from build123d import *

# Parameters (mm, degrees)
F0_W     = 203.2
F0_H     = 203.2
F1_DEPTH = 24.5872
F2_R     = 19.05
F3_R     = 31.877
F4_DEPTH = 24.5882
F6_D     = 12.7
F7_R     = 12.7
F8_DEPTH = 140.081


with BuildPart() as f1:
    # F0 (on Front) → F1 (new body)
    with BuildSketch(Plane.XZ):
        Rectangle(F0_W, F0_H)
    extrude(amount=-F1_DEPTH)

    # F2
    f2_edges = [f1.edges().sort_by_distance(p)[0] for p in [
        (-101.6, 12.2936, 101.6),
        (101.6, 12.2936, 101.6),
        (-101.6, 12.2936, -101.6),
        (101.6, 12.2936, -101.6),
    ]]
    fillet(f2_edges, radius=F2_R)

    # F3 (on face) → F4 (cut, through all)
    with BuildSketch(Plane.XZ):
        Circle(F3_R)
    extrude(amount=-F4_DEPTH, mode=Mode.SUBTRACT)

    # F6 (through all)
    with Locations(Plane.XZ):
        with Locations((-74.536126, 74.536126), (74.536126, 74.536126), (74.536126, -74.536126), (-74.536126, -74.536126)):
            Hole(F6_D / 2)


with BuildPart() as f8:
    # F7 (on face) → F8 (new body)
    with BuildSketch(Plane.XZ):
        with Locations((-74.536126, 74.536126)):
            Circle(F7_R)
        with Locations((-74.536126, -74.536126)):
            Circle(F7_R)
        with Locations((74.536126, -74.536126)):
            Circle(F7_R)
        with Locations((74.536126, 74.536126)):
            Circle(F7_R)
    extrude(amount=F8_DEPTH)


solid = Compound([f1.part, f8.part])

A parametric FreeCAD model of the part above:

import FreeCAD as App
import Part
import Sketcher
from FreeCAD import Vector
Q = App.Units.Quantity


def edges_at(feature, points):
    """Names of the edges that pass closest to the given points."""
    edges = feature.Shape.Edges
    near = lambda p: min(range(len(edges)), key=lambda i: edges[i].distToShape(Part.Vertex(*p))[0])
    return sorted({f"Edge{near(p) + 1}" for p in points})

doc = App.newDocument("Part")
params = doc.addObject("Spreadsheet::Sheet", "Params")
for row, (alias, value) in enumerate([
    ("sketch1_width", "8 in"),
    ("pad1_length", "0.968 in"),
    ("fillet_radius", "0.75 in"),
    ("sketch2_diameter", "2.51 in"),
    ("sketch3_diameter", "0.5 in"),
    ("hole_diameter", "0.5 in"),
    ("sketch4_diameter", "1 in"),
    ("pad2_length", "5.515 in"),
], start=1):
    params.set(f"A{row}", alias)
    params.set(f"B{row}", "=" + value)
    params.setAlias(f"B{row}", alias)

body = doc.addObject("PartDesign::Body", "Body")

sketch1 = body.newObject("Sketcher::SketchObject", "Sketch")
sketch1.AttachmentSupport = (doc.getObject("XZ_Plane"), [""])
sketch1.MapMode = "FlatFace"
sketch1.addGeometry(Part.LineSegment(Vector(-102, 102, 0), Vector(-102, -102, 0)), False)
sketch1.addGeometry(Part.LineSegment(Vector(-102, -102, 0), Vector(102, -102, 0)), False)
sketch1.addGeometry(Part.LineSegment(Vector(102, -102, 0), Vector(102, 102, 0)), False)
sketch1.addGeometry(Part.LineSegment(Vector(102, 102, 0), Vector(-102, 102, 0)), False)
sketch1.addConstraint(Sketcher.Constraint("Coincident", 0, 2, 1, 1))
sketch1.addConstraint(Sketcher.Constraint("Coincident", 1, 2, 2, 1))
sketch1.addConstraint(Sketcher.Constraint("Coincident", 2, 2, 3, 1))
sketch1.addConstraint(Sketcher.Constraint("Coincident", 3, 2, 0, 1))
sketch1.addConstraint(Sketcher.Constraint("Vertical", 0))
sketch1.addConstraint(Sketcher.Constraint("Horizontal", 1))
sketch1.addConstraint(Sketcher.Constraint("Vertical", 2))
sketch1.addConstraint(Sketcher.Constraint("Horizontal", 3))
sketch1.addConstraint(Sketcher.Constraint("Symmetric", 0, 2, 2, 2, -1, 1))
sketch1.addConstraint(Sketcher.Constraint("Equal", 3, 0))
sketch1.addConstraint(Sketcher.Constraint("DistanceX", 1, 1, 1, 2, Q("8 in")))
sketch1.setExpression("Constraints[10]", "Params.sketch1_width")
pad1 = body.newObject("PartDesign::Pad", "Pad")
pad1.Profile = sketch1
pad1.setExpression("Length", "Params.pad1_length")
pad1.Reversed = True
doc.recompute()

fillet = body.newObject("PartDesign::Fillet", "Fillet")
fillet.Base = (pad1, edges_at(pad1, [
    (-101.6, 12.294, 101.6),
    (101.6, 12.294, 101.6),
    (-101.6, 12.294, -101.6),
    (101.6, 12.294, -101.6),
]))
fillet.setExpression("Radius", "Params.fillet_radius")

sketch2 = body.newObject("Sketcher::SketchObject", "Sketch001")
sketch2.AttachmentSupport = (doc.getObject("XZ_Plane"), [""])
sketch2.MapMode = "FlatFace"
sketch2.addGeometry(Part.Circle(Vector(0, 0, 0), Vector(0, 0, 1), 32), False)
sketch2.addConstraint(Sketcher.Constraint("Coincident", 0, 3, -1, 1))
sketch2.addConstraint(Sketcher.Constraint("Diameter", 0, Q("2.51 in")))
sketch2.setExpression("Constraints[1]", "Params.sketch2_diameter")
pocket1 = body.newObject("PartDesign::Pocket", "Pocket")
pocket1.Profile = sketch2
pocket1.Type = "ThroughAll"

sketch3 = body.newObject("Sketcher::SketchObject", "Sketch002")
sketch3.AttachmentSupport = (doc.getObject("XZ_Plane"), [""])
sketch3.MapMode = "FlatFace"
sketch3.addGeometry(Part.Circle(Vector(-75, 75, 0), Vector(0, 0, 1), 6), False)
sketch3.addGeometry(Part.Circle(Vector(75, 75, 0), Vector(0, 0, 1), 6), False)
sketch3.addGeometry(Part.Circle(Vector(75, -75, 0), Vector(0, 0, 1), 6), False)
sketch3.addGeometry(Part.Circle(Vector(-75, -75, 0), Vector(0, 0, 1), 6), False)
sketch3.addConstraint(Sketcher.Constraint("Equal", 0, 1))
sketch3.addConstraint(Sketcher.Constraint("Equal", 1, 2))
sketch3.addConstraint(Sketcher.Constraint("Equal", 2, 3))
sketch3.addConstraint(Sketcher.Constraint("Symmetric", 0, 3, 2, 3, -1, 1))
sketch3.addConstraint(Sketcher.Constraint("Symmetric", 1, 3, 3, 3, -1, 1))
sketch3.addConstraint(Sketcher.Constraint("Symmetric", 0, 3, 1, 3, -2))
sketch3.addConstraint(Sketcher.Constraint("Diameter", 0, Q("0.5 in")))
sketch3.addConstraint(Sketcher.Constraint("DistanceX", 0, 3, 1, 3, Q("149.072252 mm")))
sketch3.addConstraint(Sketcher.Constraint("DistanceY", 2, 3, 1, 3, Q("149.072252 mm")))
sketch3.setExpression("Constraints[6]", "Params.sketch3_diameter")
doc.recompute()
hole = body.newObject("PartDesign::Hole", "Hole")
hole.Profile = sketch3
hole.ThreadType = "None"
hole.setExpression("Diameter", "Params.hole_diameter")
hole.DepthType = "ThroughAll"
body2 = doc.addObject("PartDesign::Body", "Body001")
body2.AllowCompound = True

sketch4 = body2.newObject("Sketcher::SketchObject", "Sketch003")
sketch4.AttachmentSupport = (doc.getObject("XZ_Plane001"), [""])
sketch4.MapMode = "FlatFace"
sketch4.addGeometry(Part.Circle(Vector(-75, 75, 0), Vector(0, 0, 1), 13), False)
sketch4.addGeometry(Part.Circle(Vector(-75, -75, 0), Vector(0, 0, 1), 13), False)
sketch4.addGeometry(Part.Circle(Vector(75, -75, 0), Vector(0, 0, 1), 13), False)
sketch4.addGeometry(Part.Circle(Vector(75, 75, 0), Vector(0, 0, 1), 13), False)
sketch4.addConstraint(Sketcher.Constraint("Equal", 0, 1))
sketch4.addConstraint(Sketcher.Constraint("Equal", 1, 2))
sketch4.addConstraint(Sketcher.Constraint("Equal", 2, 3))
sketch4.addConstraint(Sketcher.Constraint("Symmetric", 0, 3, 2, 3, -1, 1))
sketch4.addConstraint(Sketcher.Constraint("Symmetric", 1, 3, 3, 3, -1, 1))
sketch4.addConstraint(Sketcher.Constraint("Symmetric", 1, 3, 2, 3, -2))
sketch4.addConstraint(Sketcher.Constraint("Diameter", 0, Q("1 in")))
sketch4.addConstraint(Sketcher.Constraint("DistanceY", 1, 3, 0, 3, Q("149.072252 mm")))
sketch4.addConstraint(Sketcher.Constraint("DistanceX", 1, 3, 2, 3, Q("149.072252 mm")))
sketch4.setExpression("Constraints[6]", "Params.sketch4_diameter")
pad2 = body2.newObject("PartDesign::Pad", "Pad001")
pad2.Profile = sketch4
pad2.setExpression("Length", "Params.pad2_length")

doc.recompute()
